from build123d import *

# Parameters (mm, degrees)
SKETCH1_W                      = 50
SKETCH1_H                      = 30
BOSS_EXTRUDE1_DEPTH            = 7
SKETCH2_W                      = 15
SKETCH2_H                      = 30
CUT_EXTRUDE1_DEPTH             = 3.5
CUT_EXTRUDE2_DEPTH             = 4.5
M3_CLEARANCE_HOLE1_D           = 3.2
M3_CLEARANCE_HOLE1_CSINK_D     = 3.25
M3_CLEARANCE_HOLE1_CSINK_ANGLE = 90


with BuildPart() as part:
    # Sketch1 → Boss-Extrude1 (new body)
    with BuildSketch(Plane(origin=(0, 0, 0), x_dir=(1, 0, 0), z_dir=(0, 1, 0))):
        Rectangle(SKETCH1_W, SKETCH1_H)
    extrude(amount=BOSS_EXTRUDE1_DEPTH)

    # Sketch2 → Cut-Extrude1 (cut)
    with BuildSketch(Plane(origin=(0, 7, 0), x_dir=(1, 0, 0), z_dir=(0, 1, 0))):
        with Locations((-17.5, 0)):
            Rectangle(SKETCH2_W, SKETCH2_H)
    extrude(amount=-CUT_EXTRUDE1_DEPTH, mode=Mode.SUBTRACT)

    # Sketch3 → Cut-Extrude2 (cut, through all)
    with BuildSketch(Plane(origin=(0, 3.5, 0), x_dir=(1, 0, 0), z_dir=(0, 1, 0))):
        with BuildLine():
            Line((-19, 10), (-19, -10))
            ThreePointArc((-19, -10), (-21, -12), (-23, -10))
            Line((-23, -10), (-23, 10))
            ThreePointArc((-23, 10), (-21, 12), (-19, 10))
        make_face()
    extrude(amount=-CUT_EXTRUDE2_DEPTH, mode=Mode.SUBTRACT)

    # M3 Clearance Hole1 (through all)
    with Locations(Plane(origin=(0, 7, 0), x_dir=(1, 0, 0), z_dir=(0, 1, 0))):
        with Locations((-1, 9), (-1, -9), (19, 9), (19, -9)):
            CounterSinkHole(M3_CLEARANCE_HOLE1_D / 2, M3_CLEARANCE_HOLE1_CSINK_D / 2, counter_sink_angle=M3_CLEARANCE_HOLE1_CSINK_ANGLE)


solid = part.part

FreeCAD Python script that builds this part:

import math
import FreeCAD as App
import Part
import Sketcher
Q = App.Units.Quantity


def add_polygon(sketch, points):
    """Adds a closed chain of lines whose ends are joined by coincident constraints."""
    first, n = sketch.GeometryCount, len(points)
    for a, b in zip(points, points[1:] + points[:1]):
        sketch.addGeometry(Part.LineSegment(App.Vector(*a, 0), App.Vector(*b, 0)), False)
    for i in range(n):
        sketch.addConstraint(Sketcher.Constraint("Coincident", first + i, 2, first + (i + 1) % n, 1))

doc = App.newDocument("Part")
params = doc.addObject("Spreadsheet::Sheet", "Params")
for row, (alias, value) in enumerate([
    ("sketch1_width", "50 mm"),
    ("sketch1_height", "30 mm"),
    ("pad1_length", "7 mm"),
    ("sketch2_width", "15 mm"),
    ("sketch2_height", "30 mm"),
    ("pocket1_length", "3.5 mm"),
    ("sketch3_radius", "2 mm"),
    ("sketch3_height", "20 mm"),
    ("sketch4_diameter", "3.2 mm"),
    ("hole_diameter", "3.2 mm"),
    ("hole_csink_diameter", "3.25 mm"),
], start=1):
    params.set(f"A{row}", alias)
    params.set(f"B{row}", "=" + value)
    params.setAlias(f"B{row}", alias)

body = doc.addObject("PartDesign::Body", "Body")

sketch1 = doc.addObject("Sketcher::SketchObject", "Sketch")
body.addObject(sketch1)
sketch1.AttachmentSupport = (doc.XZ_Plane, [""])
sketch1.MapMode = "FlatFace"
add_polygon(sketch1, [(-25, -15), (-25, 15), (25, 15), (25, -15)])
sketch1.addConstraint([
    Sketcher.Constraint("Vertical", 0),
    Sketcher.Constraint("Horizontal", 1),
    Sketcher.Constraint("Vertical", 2),
    Sketcher.Constraint("Horizontal", 3),
    Sketcher.Constraint("Symmetric", 0, 2, 2, 2, -1, 1),
    Sketcher.Constraint("DistanceX", 1, 1, 1, 2, Q("50 mm")),
    Sketcher.Constraint("DistanceY", 0, 1, 0, 2, Q("30 mm")),
])
sketch1.setExpression("Constraints[9]", "Params.sketch1_width")
sketch1.setExpression("Constraints[10]", "Params.sketch1_height")
pad1 = doc.addObject("PartDesign::Pad", "Pad")
body.addObject(pad1)
pad1.Profile = sketch1
pad1.setExpression("Length", "Params.pad1_length")
pad1.Reversed = True

sketch2 = doc.addObject("Sketcher::SketchObject", "Sketch001")
body.addObject(sketch2)
sketch2.AttachmentSupport = (doc.XZ_Plane, [""])
sketch2.MapMode = "FlatFace"
sketch2.AttachmentOffset = App.Placement(App.Vector(0, 0, -7), App.Rotation())
add_polygon(sketch2, [(-25, -15), (-25, 15), (-10, 15), (-10, -15)])
sketch2.addConstraint([
    Sketcher.Constraint("Vertical", 0),
    Sketcher.Constraint("Horizontal", 1),
    Sketcher.Constraint("Vertical", 2),
    Sketcher.Constraint("Horizontal", 3),
    Sketcher.Constraint("DistanceX", 1, 1, 1, 2, Q("15 mm")),
    Sketcher.Constraint("DistanceY", 0, 1, 0, 2, Q("30 mm")),
    Sketcher.Constraint("DistanceX", 0, 2, -1, 1, Q("25 mm")),
    Sketcher.Constraint("DistanceY", -1, 1, 0, 2, Q("15 mm")),
])
sketch2.setExpression("Constraints[8]", "Params.sketch2_width")
sketch2.setExpression("Constraints[9]", "Params.sketch2_height")
pocket1 = doc.addObject("PartDesign::Pocket", "Pocket")
body.addObject(pocket1)
pocket1.Profile = sketch2
pocket1.setExpression("Length", "Params.pocket1_length")
pocket1.Reversed = True

sketch3 = doc.addObject("Sketcher::SketchObject", "Sketch002")
body.addObject(sketch3)
sketch3.AttachmentSupport = (doc.XZ_Plane, [""])
sketch3.MapMode = "FlatFace"
sketch3.AttachmentOffset = App.Placement(App.Vector(0, 0, -3.5), App.Rotation())
sketch3.addGeometry([
    Part.LineSegment(App.Vector(-19, 10, 0), App.Vector(-19, -10, 0)),
    Part.ArcOfCircle(Part.Circle(App.Vector(-21, -10, 0), App.Vector(0, 0, 1), 2), math.radians(180), math.radians(360)),
    Part.LineSegment(App.Vector(-23, -10, 0), App.Vector(-23, 10, 0)),
    Part.ArcOfCircle(Part.Circle(App.Vector(-21, 10, 0), App.Vector(0, 0, 1), 2), math.radians(0), math.radians(180)),
], False)
sketch3.addConstraint([
    Sketcher.Constraint("Tangent", 0, 2, 1, 2),
    Sketcher.Constraint("Tangent", 1, 1, 2, 1),
    Sketcher.Constraint("Tangent", 2, 2, 3, 2),
    Sketcher.Constraint("Tangent", 3, 1, 0, 1),
    Sketcher.Constraint("Vertical", 0),
    Sketcher.Constraint("Vertical", 2),
    Sketcher.Constraint("Radius", 1, Q("2 mm")),
    Sketcher.Constraint("DistanceY", 0, 2, 0, 1, Q("20 mm")),
    Sketcher.Constraint("DistanceX", 1, 3, -1, 1, Q("21 mm")),
    Sketcher.Constraint("DistanceY", 1, 3, -1, 1, Q("10 mm")),
])
sketch3.setExpression("Constraints[6]", "Params.sketch3_radius")
sketch3.setExpression("Constraints[7]", "Params.sketch3_height")
pocket2 = doc.addObject("PartDesign::Pocket", "Pocket001")
body.addObject(pocket2)
pocket2.Profile = sketch3
pocket2.Type = "ThroughAll"
pocket2.Reversed = True

sketch4 = doc.addObject("Sketcher::SketchObject", "Sketch003")
body.addObject(sketch4)
sketch4.AttachmentSupport = (doc.XZ_Plane, [""])
sketch4.MapMode = "FlatFace"
sketch4.AttachmentOffset = App.Placement(App.Vector(0, 0, -7), App.Rotation())
sketch4.addGeometry([
    Part.Circle(App.Vector(-1, -9, 0), App.Vector(0, 0, 1), 1.6),
    Part.Circle(App.Vector(-1, 9, 0), App.Vector(0, 0, 1), 1.6),
    Part.Circle(App.Vector(19, -9, 0), App.Vector(0, 0, 1), 1.6),
    Part.Circle(App.Vector(19, 9, 0), App.Vector(0, 0, 1), 1.6),
], False)
sketch4.addConstraint([
    Sketcher.Constraint("Equal", 0, 1),
    Sketcher.Constraint("Equal", 1, 2),
    Sketcher.Constraint("Equal", 2, 3),
    Sketcher.Constraint("Symmetric", 0, 3, 1, 3, -1),
    Sketcher.Constraint("Symmetric", 2, 3, 3, 3, -1),
    Sketcher.Constraint("Horizontal", 0, 3, 2, 3),
    Sketcher.Constraint("Diameter", 0, Q("3.2 mm")),
    Sketcher.Constraint("DistanceX", 0, 3, -1, 1, Q("1 mm")),
    Sketcher.Constraint("DistanceY", 0, 3, -1, 1, Q("9 mm")),
    Sketcher.Constraint("DistanceX", -1, 1, 2, 3, Q("19 mm")),
])
sketch4.setExpression("Constraints[6]", "Params.sketch4_diameter")
doc.recompute()
hole = doc.addObject("PartDesign::Hole", "Hole")
body.addObject(hole)
hole.Profile = sketch4
hole.ThreadType = "None"
hole.setExpression("Diameter", "Params.hole_diameter")
hole.DepthType = "ThroughAll"
hole.HoleCutType = "Countersink"
hole.setExpression("HoleCutDiameter", "Params.hole_csink_diameter")
hole.HoleCutCountersinkAngle = 90
hole.Reversed = True

doc.recompute()
